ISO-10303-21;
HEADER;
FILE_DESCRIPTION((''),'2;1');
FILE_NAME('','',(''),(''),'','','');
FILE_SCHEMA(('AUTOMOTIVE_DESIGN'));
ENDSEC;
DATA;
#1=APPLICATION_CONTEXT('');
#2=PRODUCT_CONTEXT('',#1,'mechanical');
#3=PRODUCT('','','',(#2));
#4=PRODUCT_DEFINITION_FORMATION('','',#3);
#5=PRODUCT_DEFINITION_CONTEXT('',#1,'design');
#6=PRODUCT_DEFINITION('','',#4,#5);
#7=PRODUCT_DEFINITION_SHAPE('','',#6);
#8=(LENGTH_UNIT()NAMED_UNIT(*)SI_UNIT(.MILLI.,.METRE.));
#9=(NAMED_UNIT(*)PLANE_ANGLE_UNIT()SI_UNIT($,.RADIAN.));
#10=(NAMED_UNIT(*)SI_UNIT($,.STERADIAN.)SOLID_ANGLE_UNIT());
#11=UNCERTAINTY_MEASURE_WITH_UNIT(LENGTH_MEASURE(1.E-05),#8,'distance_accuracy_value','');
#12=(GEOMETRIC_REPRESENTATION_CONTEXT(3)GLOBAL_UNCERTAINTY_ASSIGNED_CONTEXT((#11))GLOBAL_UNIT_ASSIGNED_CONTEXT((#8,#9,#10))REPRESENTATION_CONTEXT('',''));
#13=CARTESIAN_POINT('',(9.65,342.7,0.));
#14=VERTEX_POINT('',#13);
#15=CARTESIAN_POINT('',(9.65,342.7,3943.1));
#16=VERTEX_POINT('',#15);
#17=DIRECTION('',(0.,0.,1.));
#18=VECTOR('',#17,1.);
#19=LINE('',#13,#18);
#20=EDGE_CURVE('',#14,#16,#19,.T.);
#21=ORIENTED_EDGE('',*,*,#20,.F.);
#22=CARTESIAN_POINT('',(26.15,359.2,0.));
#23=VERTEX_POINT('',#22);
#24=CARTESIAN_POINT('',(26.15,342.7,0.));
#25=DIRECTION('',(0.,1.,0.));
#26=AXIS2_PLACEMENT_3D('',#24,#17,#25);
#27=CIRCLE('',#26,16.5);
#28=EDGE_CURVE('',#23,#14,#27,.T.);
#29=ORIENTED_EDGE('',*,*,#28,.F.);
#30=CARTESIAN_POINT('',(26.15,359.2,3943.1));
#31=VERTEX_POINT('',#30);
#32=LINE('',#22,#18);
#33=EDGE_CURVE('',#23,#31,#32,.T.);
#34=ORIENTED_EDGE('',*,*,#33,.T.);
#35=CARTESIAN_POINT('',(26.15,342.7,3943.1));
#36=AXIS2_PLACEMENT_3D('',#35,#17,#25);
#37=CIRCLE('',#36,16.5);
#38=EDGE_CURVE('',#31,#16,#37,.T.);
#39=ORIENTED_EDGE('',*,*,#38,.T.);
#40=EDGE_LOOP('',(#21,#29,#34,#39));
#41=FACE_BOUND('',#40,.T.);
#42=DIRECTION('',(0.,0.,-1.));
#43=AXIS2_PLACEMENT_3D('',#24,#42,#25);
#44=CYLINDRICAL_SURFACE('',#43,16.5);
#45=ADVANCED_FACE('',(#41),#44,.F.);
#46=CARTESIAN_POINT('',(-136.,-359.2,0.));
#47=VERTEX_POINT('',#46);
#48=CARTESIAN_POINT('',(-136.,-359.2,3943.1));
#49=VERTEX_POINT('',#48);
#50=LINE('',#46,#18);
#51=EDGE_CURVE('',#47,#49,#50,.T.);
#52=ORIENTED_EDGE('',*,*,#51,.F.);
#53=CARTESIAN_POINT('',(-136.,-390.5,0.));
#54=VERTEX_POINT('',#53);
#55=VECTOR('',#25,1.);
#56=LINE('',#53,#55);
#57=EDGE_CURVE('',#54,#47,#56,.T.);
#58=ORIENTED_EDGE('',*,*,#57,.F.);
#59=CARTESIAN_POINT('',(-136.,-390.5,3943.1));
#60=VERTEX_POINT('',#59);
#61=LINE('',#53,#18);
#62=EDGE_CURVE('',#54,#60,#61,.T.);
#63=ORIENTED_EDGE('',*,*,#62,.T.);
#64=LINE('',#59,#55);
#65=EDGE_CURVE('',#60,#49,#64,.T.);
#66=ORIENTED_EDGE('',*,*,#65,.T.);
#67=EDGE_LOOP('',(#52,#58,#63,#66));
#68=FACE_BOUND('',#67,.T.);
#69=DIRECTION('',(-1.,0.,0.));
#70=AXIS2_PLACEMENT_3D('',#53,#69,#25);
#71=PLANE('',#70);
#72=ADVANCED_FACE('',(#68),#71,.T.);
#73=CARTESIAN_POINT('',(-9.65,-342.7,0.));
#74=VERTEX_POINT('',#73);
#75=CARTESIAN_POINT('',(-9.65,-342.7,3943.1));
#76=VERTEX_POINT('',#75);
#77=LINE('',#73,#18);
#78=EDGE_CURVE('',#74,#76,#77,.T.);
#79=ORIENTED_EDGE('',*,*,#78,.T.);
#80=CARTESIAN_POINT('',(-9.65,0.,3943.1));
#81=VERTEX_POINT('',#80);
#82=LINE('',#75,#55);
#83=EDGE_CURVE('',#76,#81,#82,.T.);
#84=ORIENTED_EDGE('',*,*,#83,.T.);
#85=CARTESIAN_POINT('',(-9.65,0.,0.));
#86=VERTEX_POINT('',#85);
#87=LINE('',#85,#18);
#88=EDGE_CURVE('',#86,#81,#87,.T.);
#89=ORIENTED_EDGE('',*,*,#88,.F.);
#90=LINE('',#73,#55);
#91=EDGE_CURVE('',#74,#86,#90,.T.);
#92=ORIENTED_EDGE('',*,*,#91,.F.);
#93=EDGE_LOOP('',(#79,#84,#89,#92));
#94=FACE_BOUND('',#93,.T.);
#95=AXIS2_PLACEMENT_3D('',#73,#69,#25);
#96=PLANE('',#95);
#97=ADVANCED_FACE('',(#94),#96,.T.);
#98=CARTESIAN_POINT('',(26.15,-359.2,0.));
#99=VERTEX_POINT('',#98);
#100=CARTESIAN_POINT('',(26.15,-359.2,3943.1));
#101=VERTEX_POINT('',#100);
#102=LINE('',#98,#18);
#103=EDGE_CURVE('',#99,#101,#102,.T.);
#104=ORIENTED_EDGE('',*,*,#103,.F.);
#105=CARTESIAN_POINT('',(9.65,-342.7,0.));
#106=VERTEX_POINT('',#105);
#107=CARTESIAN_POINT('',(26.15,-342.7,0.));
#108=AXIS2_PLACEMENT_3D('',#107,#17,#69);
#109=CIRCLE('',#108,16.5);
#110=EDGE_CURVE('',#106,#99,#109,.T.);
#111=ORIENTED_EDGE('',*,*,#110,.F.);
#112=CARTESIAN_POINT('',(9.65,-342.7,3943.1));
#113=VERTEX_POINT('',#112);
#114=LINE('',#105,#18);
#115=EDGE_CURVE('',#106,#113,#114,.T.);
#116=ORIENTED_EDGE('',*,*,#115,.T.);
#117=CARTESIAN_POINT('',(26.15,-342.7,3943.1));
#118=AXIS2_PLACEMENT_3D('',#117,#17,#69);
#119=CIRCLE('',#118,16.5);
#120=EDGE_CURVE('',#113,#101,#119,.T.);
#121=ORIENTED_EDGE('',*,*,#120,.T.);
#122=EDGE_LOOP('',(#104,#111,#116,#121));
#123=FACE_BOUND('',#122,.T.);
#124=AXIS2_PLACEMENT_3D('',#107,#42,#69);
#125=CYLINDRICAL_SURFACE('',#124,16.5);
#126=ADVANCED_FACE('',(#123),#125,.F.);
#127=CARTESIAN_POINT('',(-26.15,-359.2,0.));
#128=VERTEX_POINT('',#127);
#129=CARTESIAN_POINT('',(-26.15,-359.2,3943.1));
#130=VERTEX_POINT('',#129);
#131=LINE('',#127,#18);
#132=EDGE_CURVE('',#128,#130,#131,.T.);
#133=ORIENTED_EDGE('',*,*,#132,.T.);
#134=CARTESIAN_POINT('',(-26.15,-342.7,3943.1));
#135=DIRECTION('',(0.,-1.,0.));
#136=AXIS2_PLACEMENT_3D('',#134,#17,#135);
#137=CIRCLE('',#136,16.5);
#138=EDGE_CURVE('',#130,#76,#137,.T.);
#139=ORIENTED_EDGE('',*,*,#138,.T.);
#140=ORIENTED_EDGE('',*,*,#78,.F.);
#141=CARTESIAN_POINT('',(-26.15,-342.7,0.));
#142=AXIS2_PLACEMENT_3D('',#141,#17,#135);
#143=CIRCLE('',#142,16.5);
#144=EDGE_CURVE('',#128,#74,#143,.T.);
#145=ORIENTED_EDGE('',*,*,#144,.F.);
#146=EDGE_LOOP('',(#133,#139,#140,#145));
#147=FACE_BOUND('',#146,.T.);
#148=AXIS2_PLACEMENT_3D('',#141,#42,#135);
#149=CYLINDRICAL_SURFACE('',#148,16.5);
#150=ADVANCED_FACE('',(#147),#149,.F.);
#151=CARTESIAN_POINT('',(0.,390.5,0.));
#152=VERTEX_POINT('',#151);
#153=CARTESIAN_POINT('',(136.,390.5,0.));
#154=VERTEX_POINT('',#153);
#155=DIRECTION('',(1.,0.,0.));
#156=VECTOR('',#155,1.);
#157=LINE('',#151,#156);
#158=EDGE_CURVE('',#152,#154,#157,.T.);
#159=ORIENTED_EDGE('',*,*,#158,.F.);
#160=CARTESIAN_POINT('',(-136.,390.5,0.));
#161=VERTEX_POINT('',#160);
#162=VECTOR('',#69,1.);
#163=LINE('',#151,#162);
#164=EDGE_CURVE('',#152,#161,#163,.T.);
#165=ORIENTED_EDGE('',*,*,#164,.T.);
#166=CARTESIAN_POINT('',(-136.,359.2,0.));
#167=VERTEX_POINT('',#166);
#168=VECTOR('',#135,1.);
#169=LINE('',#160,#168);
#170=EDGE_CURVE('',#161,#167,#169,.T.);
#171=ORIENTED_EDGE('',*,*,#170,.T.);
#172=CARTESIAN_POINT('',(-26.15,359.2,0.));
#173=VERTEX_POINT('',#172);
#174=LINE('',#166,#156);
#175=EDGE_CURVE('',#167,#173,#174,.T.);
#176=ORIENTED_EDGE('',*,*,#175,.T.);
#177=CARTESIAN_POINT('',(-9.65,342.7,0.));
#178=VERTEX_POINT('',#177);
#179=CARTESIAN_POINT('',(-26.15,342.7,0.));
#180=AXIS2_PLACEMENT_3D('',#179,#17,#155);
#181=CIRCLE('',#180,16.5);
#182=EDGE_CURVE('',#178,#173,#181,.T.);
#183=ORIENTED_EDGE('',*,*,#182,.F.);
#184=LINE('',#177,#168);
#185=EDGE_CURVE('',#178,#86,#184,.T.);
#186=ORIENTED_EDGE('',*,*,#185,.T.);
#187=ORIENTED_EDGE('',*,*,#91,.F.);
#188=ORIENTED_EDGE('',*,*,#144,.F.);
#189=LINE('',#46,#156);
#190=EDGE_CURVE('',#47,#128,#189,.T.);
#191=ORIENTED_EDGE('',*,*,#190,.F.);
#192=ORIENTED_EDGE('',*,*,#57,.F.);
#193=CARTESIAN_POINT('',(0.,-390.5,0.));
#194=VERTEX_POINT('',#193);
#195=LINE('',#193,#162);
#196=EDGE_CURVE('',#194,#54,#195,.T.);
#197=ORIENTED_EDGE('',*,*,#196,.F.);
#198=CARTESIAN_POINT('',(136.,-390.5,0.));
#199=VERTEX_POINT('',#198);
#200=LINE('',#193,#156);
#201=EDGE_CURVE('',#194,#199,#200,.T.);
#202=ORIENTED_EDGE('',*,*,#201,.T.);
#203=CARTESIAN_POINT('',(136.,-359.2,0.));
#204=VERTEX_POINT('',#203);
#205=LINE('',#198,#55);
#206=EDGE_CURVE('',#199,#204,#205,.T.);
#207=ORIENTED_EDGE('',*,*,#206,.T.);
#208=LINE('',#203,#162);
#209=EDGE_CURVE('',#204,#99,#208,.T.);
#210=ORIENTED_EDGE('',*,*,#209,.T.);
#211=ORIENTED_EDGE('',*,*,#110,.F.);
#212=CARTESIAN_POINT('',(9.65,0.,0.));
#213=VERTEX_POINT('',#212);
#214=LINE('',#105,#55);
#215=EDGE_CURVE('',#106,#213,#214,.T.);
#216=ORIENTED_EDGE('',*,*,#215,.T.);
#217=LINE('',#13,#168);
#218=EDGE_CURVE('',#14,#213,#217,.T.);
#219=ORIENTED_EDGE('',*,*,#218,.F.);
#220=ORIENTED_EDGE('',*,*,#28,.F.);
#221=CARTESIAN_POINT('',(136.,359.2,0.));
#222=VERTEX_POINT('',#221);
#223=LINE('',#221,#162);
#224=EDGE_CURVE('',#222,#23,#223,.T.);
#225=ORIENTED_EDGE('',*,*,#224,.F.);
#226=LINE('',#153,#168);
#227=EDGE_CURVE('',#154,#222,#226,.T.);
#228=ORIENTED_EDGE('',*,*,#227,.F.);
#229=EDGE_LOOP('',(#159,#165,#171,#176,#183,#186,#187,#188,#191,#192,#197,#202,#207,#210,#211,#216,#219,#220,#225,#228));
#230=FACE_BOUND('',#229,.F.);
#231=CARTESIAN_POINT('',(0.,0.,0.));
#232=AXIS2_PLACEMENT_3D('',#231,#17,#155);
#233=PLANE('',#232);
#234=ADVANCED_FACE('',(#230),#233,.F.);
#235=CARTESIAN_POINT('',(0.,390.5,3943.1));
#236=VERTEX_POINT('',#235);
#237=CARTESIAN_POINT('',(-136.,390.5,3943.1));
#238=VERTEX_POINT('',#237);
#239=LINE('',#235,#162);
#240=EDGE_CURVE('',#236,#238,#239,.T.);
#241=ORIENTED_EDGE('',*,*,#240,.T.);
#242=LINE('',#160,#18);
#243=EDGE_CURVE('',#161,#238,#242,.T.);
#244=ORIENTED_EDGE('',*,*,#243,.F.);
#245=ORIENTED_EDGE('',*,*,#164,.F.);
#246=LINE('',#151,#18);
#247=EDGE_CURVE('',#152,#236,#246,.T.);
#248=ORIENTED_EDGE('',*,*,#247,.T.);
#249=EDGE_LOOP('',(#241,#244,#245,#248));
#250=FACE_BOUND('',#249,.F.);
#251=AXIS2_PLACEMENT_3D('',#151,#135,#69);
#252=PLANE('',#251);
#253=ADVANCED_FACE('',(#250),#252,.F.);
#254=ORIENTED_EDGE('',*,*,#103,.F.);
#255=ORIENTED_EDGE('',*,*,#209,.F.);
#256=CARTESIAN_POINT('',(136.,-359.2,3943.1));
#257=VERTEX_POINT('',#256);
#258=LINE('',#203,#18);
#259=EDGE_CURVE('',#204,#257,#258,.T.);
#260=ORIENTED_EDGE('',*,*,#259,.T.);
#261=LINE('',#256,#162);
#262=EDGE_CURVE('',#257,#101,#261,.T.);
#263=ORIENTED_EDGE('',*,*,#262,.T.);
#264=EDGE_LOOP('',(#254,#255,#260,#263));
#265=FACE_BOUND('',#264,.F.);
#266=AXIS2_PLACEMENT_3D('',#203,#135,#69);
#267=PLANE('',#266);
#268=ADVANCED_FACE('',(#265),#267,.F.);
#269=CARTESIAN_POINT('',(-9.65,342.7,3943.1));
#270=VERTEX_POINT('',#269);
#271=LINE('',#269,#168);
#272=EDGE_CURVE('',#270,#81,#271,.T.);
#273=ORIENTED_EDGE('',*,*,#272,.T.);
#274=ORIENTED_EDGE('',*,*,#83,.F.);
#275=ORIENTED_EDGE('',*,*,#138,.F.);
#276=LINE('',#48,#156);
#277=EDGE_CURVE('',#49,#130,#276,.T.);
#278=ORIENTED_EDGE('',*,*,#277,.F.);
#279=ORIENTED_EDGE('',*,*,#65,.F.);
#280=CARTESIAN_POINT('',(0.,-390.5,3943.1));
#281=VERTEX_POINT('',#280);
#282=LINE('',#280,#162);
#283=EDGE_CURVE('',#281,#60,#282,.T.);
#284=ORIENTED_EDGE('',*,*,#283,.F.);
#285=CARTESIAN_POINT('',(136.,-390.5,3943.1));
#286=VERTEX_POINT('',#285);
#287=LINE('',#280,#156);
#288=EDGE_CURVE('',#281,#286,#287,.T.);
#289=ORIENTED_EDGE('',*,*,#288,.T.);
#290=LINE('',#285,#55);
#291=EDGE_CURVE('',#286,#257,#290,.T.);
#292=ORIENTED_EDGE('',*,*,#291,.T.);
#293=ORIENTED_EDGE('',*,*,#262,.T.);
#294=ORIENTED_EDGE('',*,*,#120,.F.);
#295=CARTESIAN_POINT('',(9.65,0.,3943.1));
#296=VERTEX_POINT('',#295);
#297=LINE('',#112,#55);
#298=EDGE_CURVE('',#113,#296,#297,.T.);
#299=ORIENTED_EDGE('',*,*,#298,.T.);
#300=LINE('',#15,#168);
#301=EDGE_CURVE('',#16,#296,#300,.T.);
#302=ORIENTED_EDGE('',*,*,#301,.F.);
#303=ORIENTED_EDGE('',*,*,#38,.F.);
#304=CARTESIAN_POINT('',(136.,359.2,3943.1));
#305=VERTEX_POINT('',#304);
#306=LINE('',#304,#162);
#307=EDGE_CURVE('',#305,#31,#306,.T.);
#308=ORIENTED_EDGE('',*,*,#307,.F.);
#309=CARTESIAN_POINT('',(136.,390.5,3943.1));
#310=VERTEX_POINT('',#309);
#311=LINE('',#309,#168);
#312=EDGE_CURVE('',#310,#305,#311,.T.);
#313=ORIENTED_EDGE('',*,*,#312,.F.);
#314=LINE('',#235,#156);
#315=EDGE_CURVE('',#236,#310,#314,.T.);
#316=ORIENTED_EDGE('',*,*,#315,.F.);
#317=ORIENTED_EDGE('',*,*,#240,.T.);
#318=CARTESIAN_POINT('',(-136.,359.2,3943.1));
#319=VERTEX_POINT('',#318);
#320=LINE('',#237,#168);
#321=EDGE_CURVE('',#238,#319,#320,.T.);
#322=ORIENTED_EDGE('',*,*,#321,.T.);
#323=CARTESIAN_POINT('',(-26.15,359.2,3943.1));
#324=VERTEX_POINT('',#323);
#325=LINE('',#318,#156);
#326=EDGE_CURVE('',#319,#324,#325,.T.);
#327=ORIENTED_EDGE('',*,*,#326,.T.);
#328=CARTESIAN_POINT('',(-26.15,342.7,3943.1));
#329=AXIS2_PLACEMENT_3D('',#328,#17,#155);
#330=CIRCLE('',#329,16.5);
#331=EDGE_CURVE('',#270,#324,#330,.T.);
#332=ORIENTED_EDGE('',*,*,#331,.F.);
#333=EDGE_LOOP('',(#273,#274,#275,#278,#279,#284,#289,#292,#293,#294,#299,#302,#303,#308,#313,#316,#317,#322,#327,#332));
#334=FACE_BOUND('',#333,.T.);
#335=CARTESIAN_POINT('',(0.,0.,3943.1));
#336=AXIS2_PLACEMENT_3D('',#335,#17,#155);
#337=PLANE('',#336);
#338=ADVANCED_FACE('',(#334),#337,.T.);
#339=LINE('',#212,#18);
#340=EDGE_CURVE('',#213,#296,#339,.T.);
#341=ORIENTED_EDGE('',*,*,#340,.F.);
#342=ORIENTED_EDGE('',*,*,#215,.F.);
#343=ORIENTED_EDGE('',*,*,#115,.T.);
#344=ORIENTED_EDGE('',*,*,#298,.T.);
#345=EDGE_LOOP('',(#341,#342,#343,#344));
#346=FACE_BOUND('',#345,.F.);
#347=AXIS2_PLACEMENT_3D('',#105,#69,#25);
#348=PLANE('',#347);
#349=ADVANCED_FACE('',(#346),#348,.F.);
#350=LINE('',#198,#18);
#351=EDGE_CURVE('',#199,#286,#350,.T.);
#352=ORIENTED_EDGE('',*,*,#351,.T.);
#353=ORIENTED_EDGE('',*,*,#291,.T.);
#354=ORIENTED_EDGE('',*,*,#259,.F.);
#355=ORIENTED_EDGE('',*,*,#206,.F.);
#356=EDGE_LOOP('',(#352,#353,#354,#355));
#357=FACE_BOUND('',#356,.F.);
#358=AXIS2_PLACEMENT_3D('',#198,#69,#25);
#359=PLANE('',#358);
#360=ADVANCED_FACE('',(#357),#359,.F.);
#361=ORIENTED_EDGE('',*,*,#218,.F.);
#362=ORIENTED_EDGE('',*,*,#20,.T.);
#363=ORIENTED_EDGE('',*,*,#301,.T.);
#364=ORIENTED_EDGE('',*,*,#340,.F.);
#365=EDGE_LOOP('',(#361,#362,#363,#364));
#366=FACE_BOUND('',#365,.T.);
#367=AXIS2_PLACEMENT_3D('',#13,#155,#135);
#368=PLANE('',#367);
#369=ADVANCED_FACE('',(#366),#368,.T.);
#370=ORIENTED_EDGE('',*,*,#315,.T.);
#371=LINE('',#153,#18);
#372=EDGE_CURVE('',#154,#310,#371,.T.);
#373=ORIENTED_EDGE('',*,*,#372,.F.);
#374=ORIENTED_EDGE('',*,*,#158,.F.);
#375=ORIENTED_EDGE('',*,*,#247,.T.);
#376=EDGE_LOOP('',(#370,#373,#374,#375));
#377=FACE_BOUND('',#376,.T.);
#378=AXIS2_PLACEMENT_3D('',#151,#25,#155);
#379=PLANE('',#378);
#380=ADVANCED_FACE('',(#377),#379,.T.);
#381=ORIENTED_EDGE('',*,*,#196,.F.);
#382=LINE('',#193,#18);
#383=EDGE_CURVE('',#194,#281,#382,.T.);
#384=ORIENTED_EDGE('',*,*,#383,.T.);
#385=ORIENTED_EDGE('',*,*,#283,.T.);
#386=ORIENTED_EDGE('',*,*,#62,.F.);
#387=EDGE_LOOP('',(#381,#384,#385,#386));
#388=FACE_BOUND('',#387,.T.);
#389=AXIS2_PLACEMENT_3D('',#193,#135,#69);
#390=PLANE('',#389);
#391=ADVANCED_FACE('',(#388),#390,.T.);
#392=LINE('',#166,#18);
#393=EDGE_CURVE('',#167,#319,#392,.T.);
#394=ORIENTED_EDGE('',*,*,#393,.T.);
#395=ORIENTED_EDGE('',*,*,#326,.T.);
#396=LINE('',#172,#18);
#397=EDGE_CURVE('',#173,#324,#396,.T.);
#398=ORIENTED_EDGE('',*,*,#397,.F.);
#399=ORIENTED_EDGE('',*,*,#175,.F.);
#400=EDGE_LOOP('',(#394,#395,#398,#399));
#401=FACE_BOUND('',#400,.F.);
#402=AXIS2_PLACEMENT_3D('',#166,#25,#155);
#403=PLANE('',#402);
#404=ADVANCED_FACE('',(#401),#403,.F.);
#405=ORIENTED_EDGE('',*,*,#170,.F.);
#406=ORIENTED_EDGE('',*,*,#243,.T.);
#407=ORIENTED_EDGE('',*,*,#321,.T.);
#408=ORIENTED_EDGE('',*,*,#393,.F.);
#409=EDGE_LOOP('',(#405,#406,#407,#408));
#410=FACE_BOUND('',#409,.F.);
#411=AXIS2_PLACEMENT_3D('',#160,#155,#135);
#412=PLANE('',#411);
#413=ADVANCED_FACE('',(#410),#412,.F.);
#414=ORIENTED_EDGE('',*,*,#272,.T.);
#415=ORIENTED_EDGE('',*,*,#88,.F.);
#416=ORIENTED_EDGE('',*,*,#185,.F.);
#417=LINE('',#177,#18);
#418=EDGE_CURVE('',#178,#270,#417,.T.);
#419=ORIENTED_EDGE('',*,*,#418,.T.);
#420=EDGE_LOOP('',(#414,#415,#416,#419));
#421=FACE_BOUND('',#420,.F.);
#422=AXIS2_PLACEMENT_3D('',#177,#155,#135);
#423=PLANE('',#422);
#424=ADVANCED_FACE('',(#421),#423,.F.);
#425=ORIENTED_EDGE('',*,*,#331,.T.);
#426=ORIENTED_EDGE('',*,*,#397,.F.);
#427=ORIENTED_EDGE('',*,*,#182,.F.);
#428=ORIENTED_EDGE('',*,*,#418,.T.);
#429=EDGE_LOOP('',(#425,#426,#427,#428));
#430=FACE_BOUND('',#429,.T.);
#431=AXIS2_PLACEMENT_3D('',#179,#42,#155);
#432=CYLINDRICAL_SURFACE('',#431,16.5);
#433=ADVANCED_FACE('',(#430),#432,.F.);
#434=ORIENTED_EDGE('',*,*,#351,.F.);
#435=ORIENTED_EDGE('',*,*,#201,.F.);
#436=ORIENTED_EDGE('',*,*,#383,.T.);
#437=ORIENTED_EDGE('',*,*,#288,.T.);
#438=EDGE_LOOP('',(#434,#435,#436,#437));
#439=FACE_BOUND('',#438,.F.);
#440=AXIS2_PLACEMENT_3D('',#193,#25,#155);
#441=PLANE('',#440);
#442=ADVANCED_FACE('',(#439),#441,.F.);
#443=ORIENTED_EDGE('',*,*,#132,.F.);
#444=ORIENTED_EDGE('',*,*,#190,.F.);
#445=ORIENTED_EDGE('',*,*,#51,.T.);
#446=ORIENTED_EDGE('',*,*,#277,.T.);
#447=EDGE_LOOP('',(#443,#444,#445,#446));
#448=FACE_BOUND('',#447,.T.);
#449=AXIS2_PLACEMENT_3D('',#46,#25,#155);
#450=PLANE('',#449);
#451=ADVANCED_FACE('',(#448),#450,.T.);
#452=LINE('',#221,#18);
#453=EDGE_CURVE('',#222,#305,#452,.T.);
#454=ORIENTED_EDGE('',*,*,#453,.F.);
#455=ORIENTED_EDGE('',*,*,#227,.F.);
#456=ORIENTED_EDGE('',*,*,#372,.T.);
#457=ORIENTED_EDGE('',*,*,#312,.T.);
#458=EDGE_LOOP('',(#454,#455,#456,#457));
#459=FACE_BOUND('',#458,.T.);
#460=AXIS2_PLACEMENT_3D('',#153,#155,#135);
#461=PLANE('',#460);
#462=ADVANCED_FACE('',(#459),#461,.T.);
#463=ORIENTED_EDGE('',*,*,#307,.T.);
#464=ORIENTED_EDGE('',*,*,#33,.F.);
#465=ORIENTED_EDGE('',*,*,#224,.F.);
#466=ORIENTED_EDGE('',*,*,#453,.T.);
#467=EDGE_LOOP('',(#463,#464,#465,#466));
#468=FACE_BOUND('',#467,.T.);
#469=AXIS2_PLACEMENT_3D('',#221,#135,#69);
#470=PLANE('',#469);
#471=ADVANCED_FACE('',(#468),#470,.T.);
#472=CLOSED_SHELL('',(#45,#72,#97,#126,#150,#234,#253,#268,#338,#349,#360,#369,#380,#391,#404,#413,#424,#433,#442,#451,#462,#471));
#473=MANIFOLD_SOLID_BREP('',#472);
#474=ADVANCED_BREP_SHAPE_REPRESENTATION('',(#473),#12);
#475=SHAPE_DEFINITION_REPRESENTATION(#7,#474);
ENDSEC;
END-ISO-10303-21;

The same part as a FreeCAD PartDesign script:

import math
import FreeCAD as App
import Part
import Sketcher
Q = App.Units.Quantity

doc = App.newDocument("Part")
params = doc.addObject("Spreadsheet::Sheet", "Params")
for row, (alias, value) in enumerate([
    ("sketch1_radius", "16.5 mm"),
    ("sketch1_height", "31.3 mm"),
    ("pad1_length", "3943.1 mm"),
], start=1):
    params.set(f"A{row}", alias)
    params.set(f"B{row}", "=" + value)
    params.setAlias(f"B{row}", alias)

body = doc.addObject("PartDesign::Body", "Body")

sketch1 = doc.addObject("Sketcher::SketchObject", "Sketch")
body.addObject(sketch1)
sketch1.AttachmentSupport = (doc.XY_Plane, [""])
sketch1.MapMode = "FlatFace"
sketch1.addGeometry([
    Part.LineSegment(App.Vector(-136, -359, 0), App.Vector(-136, -390, 0)),
    Part.LineSegment(App.Vector(-136, -390, 0), App.Vector(136, -390, 0)),
    Part.LineSegment(App.Vector(136, -390, 0), App.Vector(136, -359, 0)),
    Part.LineSegment(App.Vector(136, -359, 0), App.Vector(26, -359, 0)),
    Part.ArcOfCircle(Part.Circle(App.Vector(26, -343, 0), App.Vector(0, 0, 1), 16), math.radians(180), math.radians(270)),
    Part.LineSegment(App.Vector(10, -343, 0), App.Vector(10, 343, 0)),
    Part.ArcOfCircle(Part.Circle(App.Vector(26, 343, 0), App.Vector(0, 0, 1), 16), math.radians(90), math.radians(180)),
    Part.LineSegment(App.Vector(26, 359, 0), App.Vector(136, 359, 0)),
    Part.LineSegment(App.Vector(136, 359, 0), App.Vector(136, 390, 0)),
    Part.LineSegment(App.Vector(136, 390, 0), App.Vector(-136, 390, 0)),
    Part.LineSegment(App.Vector(-136, 390, 0), App.Vector(-136, 359, 0)),
    Part.LineSegment(App.Vector(-136, 359, 0), App.Vector(-26, 359, 0)),
    Part.ArcOfCircle(Part.Circle(App.Vector(-26, 343, 0), App.Vector(0, 0, 1), 16), math.radians(0), math.radians(90)),
    Part.LineSegment(App.Vector(-10, 343, 0), App.Vector(-10, -343, 0)),
    Part.ArcOfCircle(Part.Circle(App.Vector(-26, -343, 0), App.Vector(0, 0, 1), 16), math.radians(-90), math.radians(0)),
    Part.LineSegment(App.Vector(-26, -359, 0), App.Vector(-136, -359, 0)),
], False)
sketch1.addConstraint([
    Sketcher.Constraint("Coincident", 0, 2, 1, 1),
    Sketcher.Constraint("Coincident", 1, 2, 2, 1),
    Sketcher.Constraint("Coincident", 2, 2, 3, 1),
    Sketcher.Constraint("Tangent", 3, 2, 4, 2),
    Sketcher.Constraint("Tangent", 4, 1, 5, 1),
    Sketcher.Constraint("Tangent", 5, 2, 6, 2),
    Sketcher.Constraint("Tangent", 6, 1, 7, 1),
    Sketcher.Constraint("Coincident", 7, 2, 8, 1),
    Sketcher.Constraint("Coincident", 8, 2, 9, 1),
    Sketcher.Constraint("Coincident", 9, 2, 10, 1),
    Sketcher.Constraint("Coincident", 10, 2, 11, 1),
    Sketcher.Constraint("Tangent", 11, 2, 12, 2),
    Sketcher.Constraint("Tangent", 12, 1, 13, 1),
    Sketcher.Constraint("Tangent", 13, 2, 14, 2),
    Sketcher.Constraint("Tangent", 14, 1, 15, 1),
    Sketcher.Constraint("Coincident", 15, 2, 0, 1),
    Sketcher.Constraint("Vertical", 0),
    Sketcher.Constraint("Horizontal", 1),
    Sketcher.Constraint("Vertical", 2),
    Sketcher.Constraint("Horizontal", 3),
    Sketcher.Constraint("Vertical", 5),
    Sketcher.Constraint("Horizontal", 7),
    Sketcher.Constraint("Vertical", 8),
    Sketcher.Constraint("Horizontal", 9),
    Sketcher.Constraint("Vertical", 10),
    Sketcher.Constraint("Horizontal", 11),
    Sketcher.Constraint("Vertical", 13),
    Sketcher.Constraint("Horizontal", 15),
    Sketcher.Constraint("Equal", 4, 6),
    Sketcher.Constraint("Equal", 6, 12),
    Sketcher.Constraint("Equal", 12, 14),
    Sketcher.Constraint("Symmetric", 4, 3, 12, 3, -1, 1),
    Sketcher.Constraint("Symmetric", 0, 2, 8, 2, -1, 1),
    Sketcher.Constraint("Symmetric", 7, 2, 10, 2, -2),
    Sketcher.Constraint("Symmetric", 2, 2, 15, 2, -2),
    Sketcher.Constraint("Radius", 4, Q("16.5 mm")),
    Sketcher.Constraint("DistanceY", 0, 2, 0, 1, Q("31.3 mm")),
    Sketcher.Constraint("DistanceX", 0, 2, -1, 1, Q("136 mm")),
    Sketcher.Constraint("DistanceY", 0, 2, -1, 1, Q("390.5 mm")),
    Sketcher.Constraint("DistanceX", -1, 1, 4, 1, Q("9.65 mm")),
])
sketch1.setExpression("Constraints[35]", "Params.sketch1_radius")
sketch1.setExpression("Constraints[36]", "Params.sketch1_height")
pad1 = doc.addObject("PartDesign::Pad", "Pad")
body.addObject(pad1)
pad1.Profile = sketch1
pad1.setExpression("Length", "Params.pad1_length")

doc.recompute()
